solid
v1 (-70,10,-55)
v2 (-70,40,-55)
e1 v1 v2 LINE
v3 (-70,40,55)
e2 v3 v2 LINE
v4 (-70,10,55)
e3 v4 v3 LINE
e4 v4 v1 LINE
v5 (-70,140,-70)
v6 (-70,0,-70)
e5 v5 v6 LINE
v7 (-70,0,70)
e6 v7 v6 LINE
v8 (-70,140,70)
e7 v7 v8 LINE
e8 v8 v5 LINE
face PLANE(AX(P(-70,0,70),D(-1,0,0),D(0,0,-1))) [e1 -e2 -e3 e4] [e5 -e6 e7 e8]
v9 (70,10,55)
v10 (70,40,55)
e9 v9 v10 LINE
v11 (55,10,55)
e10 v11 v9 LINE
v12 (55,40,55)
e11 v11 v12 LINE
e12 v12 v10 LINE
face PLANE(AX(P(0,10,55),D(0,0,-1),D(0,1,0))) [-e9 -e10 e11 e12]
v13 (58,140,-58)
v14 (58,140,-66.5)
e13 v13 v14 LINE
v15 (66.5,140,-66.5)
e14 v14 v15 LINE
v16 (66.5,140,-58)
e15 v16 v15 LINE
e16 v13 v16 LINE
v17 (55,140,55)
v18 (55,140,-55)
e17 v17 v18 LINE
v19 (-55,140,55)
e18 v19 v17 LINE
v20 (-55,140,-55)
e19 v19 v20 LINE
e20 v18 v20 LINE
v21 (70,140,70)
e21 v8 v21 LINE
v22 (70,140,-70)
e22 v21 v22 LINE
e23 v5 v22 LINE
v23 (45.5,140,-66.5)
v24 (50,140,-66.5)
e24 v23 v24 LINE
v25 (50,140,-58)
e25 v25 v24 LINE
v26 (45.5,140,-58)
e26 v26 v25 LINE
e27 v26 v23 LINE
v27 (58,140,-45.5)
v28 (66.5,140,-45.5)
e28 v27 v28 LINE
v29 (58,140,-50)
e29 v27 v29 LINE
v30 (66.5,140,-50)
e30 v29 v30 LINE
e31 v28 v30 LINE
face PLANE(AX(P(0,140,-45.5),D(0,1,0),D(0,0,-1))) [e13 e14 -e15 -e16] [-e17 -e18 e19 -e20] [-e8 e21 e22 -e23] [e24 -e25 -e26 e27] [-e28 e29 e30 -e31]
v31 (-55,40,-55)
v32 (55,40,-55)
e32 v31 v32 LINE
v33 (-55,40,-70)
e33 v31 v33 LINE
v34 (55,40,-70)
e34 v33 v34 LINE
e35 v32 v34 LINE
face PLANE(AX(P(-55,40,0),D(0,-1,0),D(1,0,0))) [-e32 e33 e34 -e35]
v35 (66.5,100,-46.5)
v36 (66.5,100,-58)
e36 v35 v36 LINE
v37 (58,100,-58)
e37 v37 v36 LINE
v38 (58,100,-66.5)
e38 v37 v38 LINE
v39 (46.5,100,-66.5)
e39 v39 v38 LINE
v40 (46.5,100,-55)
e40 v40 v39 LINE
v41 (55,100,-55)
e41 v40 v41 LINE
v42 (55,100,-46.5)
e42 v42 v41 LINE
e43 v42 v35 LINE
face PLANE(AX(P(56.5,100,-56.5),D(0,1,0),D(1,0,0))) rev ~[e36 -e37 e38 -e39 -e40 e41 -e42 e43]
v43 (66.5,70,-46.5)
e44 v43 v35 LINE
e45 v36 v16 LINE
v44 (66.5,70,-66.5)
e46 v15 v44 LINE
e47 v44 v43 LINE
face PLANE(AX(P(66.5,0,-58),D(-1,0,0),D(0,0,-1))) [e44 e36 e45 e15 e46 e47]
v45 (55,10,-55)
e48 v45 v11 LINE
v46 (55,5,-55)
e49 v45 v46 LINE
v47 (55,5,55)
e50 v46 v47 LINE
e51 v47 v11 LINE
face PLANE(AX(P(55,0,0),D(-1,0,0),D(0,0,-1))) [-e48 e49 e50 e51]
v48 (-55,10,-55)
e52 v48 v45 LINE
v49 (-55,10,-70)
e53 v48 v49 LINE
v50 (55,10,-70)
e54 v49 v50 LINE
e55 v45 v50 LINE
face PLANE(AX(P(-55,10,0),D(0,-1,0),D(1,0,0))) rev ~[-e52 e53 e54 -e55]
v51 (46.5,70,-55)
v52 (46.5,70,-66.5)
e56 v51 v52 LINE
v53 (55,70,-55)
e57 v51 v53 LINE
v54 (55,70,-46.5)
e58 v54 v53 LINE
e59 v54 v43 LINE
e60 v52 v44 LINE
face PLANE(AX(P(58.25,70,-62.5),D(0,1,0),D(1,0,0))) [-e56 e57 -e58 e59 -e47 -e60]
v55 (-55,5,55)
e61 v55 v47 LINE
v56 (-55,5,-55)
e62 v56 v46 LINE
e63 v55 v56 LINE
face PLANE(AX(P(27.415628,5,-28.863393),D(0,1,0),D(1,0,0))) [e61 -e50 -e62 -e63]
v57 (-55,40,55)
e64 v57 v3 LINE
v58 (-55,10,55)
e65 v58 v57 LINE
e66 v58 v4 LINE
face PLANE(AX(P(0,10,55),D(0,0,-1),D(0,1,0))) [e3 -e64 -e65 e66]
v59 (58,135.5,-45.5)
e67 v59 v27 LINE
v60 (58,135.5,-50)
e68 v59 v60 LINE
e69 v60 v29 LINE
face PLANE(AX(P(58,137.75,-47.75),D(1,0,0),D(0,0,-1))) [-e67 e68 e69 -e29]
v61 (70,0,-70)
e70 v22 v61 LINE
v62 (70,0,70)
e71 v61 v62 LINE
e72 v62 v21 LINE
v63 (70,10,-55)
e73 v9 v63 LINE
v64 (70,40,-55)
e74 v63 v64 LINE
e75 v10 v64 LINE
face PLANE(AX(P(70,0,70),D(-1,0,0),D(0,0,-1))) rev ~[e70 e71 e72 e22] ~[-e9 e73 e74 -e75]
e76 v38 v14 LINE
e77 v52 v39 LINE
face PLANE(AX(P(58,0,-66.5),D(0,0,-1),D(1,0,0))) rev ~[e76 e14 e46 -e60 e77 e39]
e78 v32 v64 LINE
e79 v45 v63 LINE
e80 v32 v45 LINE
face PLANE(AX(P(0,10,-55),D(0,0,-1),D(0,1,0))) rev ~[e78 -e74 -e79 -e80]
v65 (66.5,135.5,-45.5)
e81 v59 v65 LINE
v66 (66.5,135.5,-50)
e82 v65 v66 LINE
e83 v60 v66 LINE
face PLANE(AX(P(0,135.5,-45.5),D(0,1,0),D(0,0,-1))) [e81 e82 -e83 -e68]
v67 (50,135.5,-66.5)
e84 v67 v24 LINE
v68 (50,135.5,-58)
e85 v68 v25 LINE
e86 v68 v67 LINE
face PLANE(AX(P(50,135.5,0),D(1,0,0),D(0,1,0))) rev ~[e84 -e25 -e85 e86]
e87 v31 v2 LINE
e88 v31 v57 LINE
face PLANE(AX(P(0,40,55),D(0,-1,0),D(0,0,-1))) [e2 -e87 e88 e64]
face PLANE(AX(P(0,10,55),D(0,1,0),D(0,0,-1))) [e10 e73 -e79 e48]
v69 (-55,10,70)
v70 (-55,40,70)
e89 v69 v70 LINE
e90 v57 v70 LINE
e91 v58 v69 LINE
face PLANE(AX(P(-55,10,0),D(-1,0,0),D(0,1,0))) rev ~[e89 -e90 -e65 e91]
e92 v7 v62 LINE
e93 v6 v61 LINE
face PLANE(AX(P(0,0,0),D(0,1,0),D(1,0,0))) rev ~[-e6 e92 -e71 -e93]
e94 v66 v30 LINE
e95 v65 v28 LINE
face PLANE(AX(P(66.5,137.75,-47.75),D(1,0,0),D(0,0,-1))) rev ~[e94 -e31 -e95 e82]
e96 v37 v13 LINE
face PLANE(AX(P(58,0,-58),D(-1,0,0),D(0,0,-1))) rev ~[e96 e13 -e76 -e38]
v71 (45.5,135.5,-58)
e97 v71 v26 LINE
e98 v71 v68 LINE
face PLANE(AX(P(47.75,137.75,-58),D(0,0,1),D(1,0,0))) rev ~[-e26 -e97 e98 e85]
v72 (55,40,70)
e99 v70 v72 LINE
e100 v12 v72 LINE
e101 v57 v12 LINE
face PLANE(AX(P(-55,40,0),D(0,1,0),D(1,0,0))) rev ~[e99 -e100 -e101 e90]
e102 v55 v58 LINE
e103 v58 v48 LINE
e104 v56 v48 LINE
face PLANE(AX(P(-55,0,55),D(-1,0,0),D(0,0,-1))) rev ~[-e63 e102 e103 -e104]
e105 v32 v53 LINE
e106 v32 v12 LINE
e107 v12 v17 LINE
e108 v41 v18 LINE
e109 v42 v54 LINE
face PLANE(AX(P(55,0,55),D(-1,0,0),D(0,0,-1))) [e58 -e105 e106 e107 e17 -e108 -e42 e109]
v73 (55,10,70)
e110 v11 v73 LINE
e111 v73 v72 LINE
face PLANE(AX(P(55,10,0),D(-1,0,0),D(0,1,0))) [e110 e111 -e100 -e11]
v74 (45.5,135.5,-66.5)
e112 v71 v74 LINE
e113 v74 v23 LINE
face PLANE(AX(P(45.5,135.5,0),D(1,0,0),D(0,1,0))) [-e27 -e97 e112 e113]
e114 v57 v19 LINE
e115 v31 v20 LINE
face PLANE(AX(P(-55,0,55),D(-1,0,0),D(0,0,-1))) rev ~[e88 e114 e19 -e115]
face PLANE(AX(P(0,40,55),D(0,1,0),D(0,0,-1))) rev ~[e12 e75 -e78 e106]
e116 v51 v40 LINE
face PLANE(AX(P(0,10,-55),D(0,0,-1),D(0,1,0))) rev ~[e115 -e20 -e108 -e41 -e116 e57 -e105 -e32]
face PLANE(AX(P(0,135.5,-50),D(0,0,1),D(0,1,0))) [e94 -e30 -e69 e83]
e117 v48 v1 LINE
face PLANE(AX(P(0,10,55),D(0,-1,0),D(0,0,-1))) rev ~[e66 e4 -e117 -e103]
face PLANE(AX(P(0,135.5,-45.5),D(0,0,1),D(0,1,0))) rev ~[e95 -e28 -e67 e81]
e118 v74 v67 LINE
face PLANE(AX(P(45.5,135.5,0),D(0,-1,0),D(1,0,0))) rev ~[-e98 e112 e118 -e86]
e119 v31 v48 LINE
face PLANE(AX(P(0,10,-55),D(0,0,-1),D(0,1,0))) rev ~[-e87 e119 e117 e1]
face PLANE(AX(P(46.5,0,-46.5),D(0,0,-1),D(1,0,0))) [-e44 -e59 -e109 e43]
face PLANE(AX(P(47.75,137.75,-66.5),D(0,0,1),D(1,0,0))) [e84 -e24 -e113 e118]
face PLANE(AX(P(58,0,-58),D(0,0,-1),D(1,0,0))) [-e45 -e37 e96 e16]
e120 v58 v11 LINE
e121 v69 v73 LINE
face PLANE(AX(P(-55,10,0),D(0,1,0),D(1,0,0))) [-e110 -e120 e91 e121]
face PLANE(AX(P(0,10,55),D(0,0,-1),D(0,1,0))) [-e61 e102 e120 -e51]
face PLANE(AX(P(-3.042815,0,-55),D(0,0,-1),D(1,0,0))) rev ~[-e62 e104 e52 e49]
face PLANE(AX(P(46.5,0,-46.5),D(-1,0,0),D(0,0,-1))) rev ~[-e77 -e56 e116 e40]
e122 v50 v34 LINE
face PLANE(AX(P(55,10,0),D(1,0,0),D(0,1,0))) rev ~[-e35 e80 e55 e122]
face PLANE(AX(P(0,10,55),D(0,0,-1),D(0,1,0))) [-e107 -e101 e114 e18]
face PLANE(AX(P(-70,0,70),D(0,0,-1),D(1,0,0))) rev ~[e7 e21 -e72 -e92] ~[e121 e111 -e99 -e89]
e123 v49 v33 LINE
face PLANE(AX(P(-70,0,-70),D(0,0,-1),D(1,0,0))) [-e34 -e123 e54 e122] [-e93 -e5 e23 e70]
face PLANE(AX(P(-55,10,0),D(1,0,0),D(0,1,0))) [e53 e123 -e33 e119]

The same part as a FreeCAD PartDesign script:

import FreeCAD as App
import Part
import Sketcher

V = App.Vector


def add_polygon(sketch, points):
    """Adds a closed chain of lines whose ends are joined by coincident constraints."""
    first, n = sketch.GeometryCount, len(points)
    for a, b in zip(points, points[1:] + points[:1]):
        sketch.addGeometry(Part.LineSegment(App.Vector(*a, 0), App.Vector(*b, 0)), False)
    for i in range(n):
        sketch.addConstraint(Sketcher.Constraint("Coincident", first + i, 2, first + (i + 1) % n, 1))

doc = App.newDocument("Part")
body = doc.addObject("PartDesign::Body", "Body")

# Sketch on XZ plane
sketch1 = body.newObject("Sketcher::SketchObject", "Sketch")
sketch1.AttachmentSupport = (doc.getObject("XZ_Plane"), [""])
sketch1.MapMode = "FlatFace"
add_polygon(sketch1, [(-70, -70), (-70, 70), (70, 70), (70, -70)])  # lines 0-3
sketch1.addConstraint([
    Sketcher.Constraint("Vertical", 0),
    Sketcher.Constraint("Horizontal", 1),
    Sketcher.Constraint("Vertical", 2),
    Sketcher.Constraint("Horizontal", 3),
    Sketcher.Constraint("Symmetric", 0, 2, 2, 2, -1, 1),
    Sketcher.Constraint("Equal", 3, 0),
    Sketcher.Constraint("DistanceX", 1, 1, 1, 2, 140.0),
])
pad1 = body.newObject("PartDesign::Pad", "Pad")
pad1.Profile = sketch1
pad1.Length = 140
pad1.Reversed = True

# Sketch on XZ plane
sketch2 = body.newObject("Sketcher::SketchObject", "Sketch001")
sketch2.AttachmentSupport = (doc.getObject("XZ_Plane"), [""])
sketch2.MapMode = "FlatFace"
add_polygon(sketch2, [(-55, -55), (-55, 55), (55, 55), (55, -55)])  # lines 0-3
sketch2.addConstraint([
    Sketcher.Constraint("Vertical", 0),
    Sketcher.Constraint("Horizontal", 1),
    Sketcher.Constraint("Vertical", 2),
    Sketcher.Constraint("Horizontal", 3),
    Sketcher.Constraint("Symmetric", 0, 2, 2, 2, -1, 1),
    Sketcher.Constraint("Equal", 3, 0),
    Sketcher.Constraint("DistanceX", 1, 1, 1, 2, 110.0),
])
pocket1 = body.newObject("PartDesign::Pocket", "Pocket")
pocket1.Profile = sketch2
pocket1.Length = 140

# Sketch on XZ plane
sketch3 = body.newObject("Sketcher::SketchObject", "Sketch002")
sketch3.AttachmentSupport = (doc.getObject("XZ_Plane"), [""])
sketch3.MapMode = "FlatFace"
add_polygon(sketch3, [(-70, -70), (-70, 70), (70, 70), (70, -70)])  # lines 0-3
sketch3.addConstraint([
    Sketcher.Constraint("Vertical", 0),
    Sketcher.Constraint("Horizontal", 1),
    Sketcher.Constraint("Vertical", 2),
    Sketcher.Constraint("Horizontal", 3),
    Sketcher.Constraint("Symmetric", 0, 2, 2, 2, -1, 1),
    Sketcher.Constraint("Equal", 3, 0),
    Sketcher.Constraint("DistanceX", 1, 1, 1, 2, 140.0),
])
pad2 = body.newObject("PartDesign::Pad", "Pad001")
pad2.Profile = sketch3
pad2.Length = 5
pad2.Reversed = True

# Sketch on XZ plane
sketch4 = body.newObject("Sketcher::SketchObject", "Sketch003")
sketch4.AttachmentSupport = (doc.getObject("XZ_Plane"), [""])
sketch4.MapMode = "FlatFace"
add_polygon(sketch4, [(58, -66), (58, -58), (66, -58), (66, -66)])  # lines 0-3
sketch4.addConstraint([
    Sketcher.Constraint("Vertical", 0),
    Sketcher.Constraint("Horizontal", 1),
    Sketcher.Constraint("Vertical", 2),
    Sketcher.Constraint("Horizontal", 3),
    Sketcher.Constraint("Equal", 3, 0),
    Sketcher.Constraint("DistanceX", 1, 1, 1, 2, 8.5),
    Sketcher.Constraint("DistanceX", -1, 1, 0, 2, 58.0),
    Sketcher.Constraint("DistanceY", 0, 2, -1, 1, 58.0),
])
pocket2 = body.newObject("PartDesign::Pocket", "Pocket001")
pocket2.Profile = sketch4
pocket2.Length = 140

# Sketch on XZ plane
sketch5 = body.newObject("Sketcher::SketchObject", "Sketch004")
sketch5.AttachmentSupport = (doc.getObject("XZ_Plane"), [""])
sketch5.MapMode = "FlatFace"
add_polygon(sketch5, [(46, -66), (46, -46), (66, -46), (66, -66)])  # lines 0-3
sketch5.addConstraint([
    Sketcher.Constraint("Vertical", 0),
    Sketcher.Constraint("Horizontal", 1),
    Sketcher.Constraint("Vertical", 2),
    Sketcher.Constraint("Horizontal", 3),
    Sketcher.Constraint("Equal", 3, 0),
    Sketcher.Constraint("DistanceX", 1, 1, 1, 2, 20.0),
    Sketcher.Constraint("DistanceX", -1, 1, 0, 2, 46.5),
    Sketcher.Constraint("DistanceY", 0, 2, -1, 1, 46.5),
])
pocket3 = body.newObject("PartDesign::Pocket", "Pocket002")
pocket3.Profile = sketch5
pocket3.Length = 100

# Sketch on XZ plane
sketch6 = body.newObject("Sketcher::SketchObject", "Sketch005")
sketch6.AttachmentSupport = (doc.getObject("XZ_Plane"), [""])
sketch6.MapMode = "FlatFace"
add_polygon(sketch6, [(41, -70), (41, -41), (70, -41), (70, -70)])  # lines 0-3
sketch6.addConstraint([
    Sketcher.Constraint("Vertical", 0),
    Sketcher.Constraint("Horizontal", 1),
    Sketcher.Constraint("Vertical", 2),
    Sketcher.Constraint("Horizontal", 3),
    Sketcher.Constraint("DistanceX", -1, 1, 1, 2, 70.0),
    Sketcher.Constraint("DistanceY", 2, 2, -1, 1, 70.0),
    Sketcher.Constraint("DistanceX", 1, 1, 1, 2, 28.647963),
    Sketcher.Constraint("DistanceY", 0, 1, 0, 2, 28.734113),
])
pad3 = body.newObject("PartDesign::Pad", "Pad002")
pad3.Profile = sketch6
pad3.Length = 5
pad3.Reversed = True

# Sketch on XZ plane
sketch7 = body.newObject("Sketcher::SketchObject", "Sketch006")
sketch7.AttachmentSupport = (doc.getObject("XZ_Plane"), [""])
sketch7.MapMode = "FlatFace"
add_polygon(sketch7, [(46, -70), (46, -55), (70, -55), (70, -70)])  # lines 0-3
sketch7.addConstraint([
    Sketcher.Constraint("Vertical", 0),
    Sketcher.Constraint("Horizontal", 1),
    Sketcher.Constraint("Vertical", 2),
    Sketcher.Constraint("Horizontal", 3),
    Sketcher.Constraint("DistanceY", 0, 1, 0, 2, 15.0),
    Sketcher.Constraint("DistanceX", 1, 1, 1, 2, 23.5),
    Sketcher.Constraint("DistanceY", 0, 2, -1, 1, 55.0),
    Sketcher.Constraint("DistanceX", -1, 1, 1, 2, 70.0),
])
pad4 = body.newObject("PartDesign::Pad", "Pad003")
pad4.Profile = sketch7
pad4.Length = 70
pad4.Reversed = True

# Sketch on XZ plane
sketch8 = body.newObject("Sketcher::SketchObject", "Sketch007")
sketch8.AttachmentSupport = (doc.getObject("XZ_Plane"), [""])
sketch8.MapMode = "FlatFace"
add_polygon(sketch8, [(55, -70), (55, -44), (70, -44), (70, -70)])  # lines 0-3
sketch8.addConstraint([
    Sketcher.Constraint("Vertical", 0),
    Sketcher.Constraint("Horizontal", 1),
    Sketcher.Constraint("Vertical", 2),
    Sketcher.Constraint("Horizontal", 3),
    Sketcher.Constraint("DistanceX", 1, 1, 1, 2, 15.0),
    Sketcher.Constraint("DistanceX", -1, 1, 0, 2, 55.0),
    Sketcher.Constraint("DistanceY", 2, 2, -1, 1, 70.0),
    Sketcher.Constraint("DistanceY", 0, 1, 0, 2, 26.494211),
])
pad5 = body.newObject("PartDesign::Pad", "Pad004")
pad5.Profile = sketch8
pad5.Length = 70
pad5.Reversed = True

# Sketch on YZ plane
sketch9 = body.newObject("Sketcher::SketchObject", "Sketch008")
sketch9.AttachmentSupport = (doc.getObject("YZ_Plane"), [""])
sketch9.MapMode = "FlatFace"
add_polygon(sketch9, [(40, 55), (10, 55), (10, -55), (40, -55)])  # lines 0-3
sketch9.addConstraint([
    Sketcher.Constraint("Horizontal", 0),
    Sketcher.Constraint("Vertical", 1),
    Sketcher.Constraint("Horizontal", 2),
    Sketcher.Constraint("Vertical", 3),
    Sketcher.Constraint("DistanceX", 0, 2, 0, 1, 30.0),
    Sketcher.Constraint("DistanceY", 1, 2, 1, 1, 110.0),
    Sketcher.Constraint("DistanceX", -1, 1, 0, 2, 10.0),
    Sketcher.Constraint("DistanceY", -1, 1, 0, 2, 55.0),
])
pocket4 = body.newObject("PartDesign::Pocket", "Pocket003")
pocket4.Profile = sketch9
pocket4.Type = "ThroughAll"
pocket4.Midplane = True

# Sketch on XY plane
sketch10 = body.newObject("Sketcher::SketchObject", "Sketch009")
sketch10.AttachmentSupport = (doc.getObject("XY_Plane"), [""])
sketch10.MapMode = "FlatFace"
add_polygon(sketch10, [(-55, 40), (-55, 10), (55, 10), (55, 40)])  # lines 0-3
sketch10.addConstraint([
    Sketcher.Constraint("Vertical", 0),
    Sketcher.Constraint("Horizontal", 1),
    Sketcher.Constraint("Vertical", 2),
    Sketcher.Constraint("Horizontal", 3),
    Sketcher.Constraint("DistanceX", 1, 1, 1, 2, 110.0),
    Sketcher.Constraint("DistanceY", 0, 2, 0, 1, 30.0),
    Sketcher.Constraint("DistanceX", 0, 2, -1, 1, 55.0),
    Sketcher.Constraint("DistanceY", -1, 1, 0, 2, 10.0),
])
pocket5 = body.newObject("PartDesign::Pocket", "Pocket004")
pocket5.Profile = sketch10
pocket5.Type = "ThroughAll"
pocket5.Midplane = True

# Sketch on XY plane
sketch11 = body.newObject("Sketcher::SketchObject", "Sketch010")
sketch11.AttachmentSupport = (doc.getObject("XY_Plane"), [""])
sketch11.MapMode = "FlatFace"
add_polygon(sketch11, [(45.5, 140), (45.5, 135.5), (50, 135.5), (50, 140)])  # lines 0-3
sketch11.addConstraint([
    Sketcher.Constraint("Vertical", 0),
    Sketcher.Constraint("Horizontal", 1),
    Sketcher.Constraint("Vertical", 2),
    Sketcher.Constraint("Horizontal", 3),
    Sketcher.Constraint("Equal", 3, 0),
    Sketcher.Constraint("DistanceX", 1, 1, 1, 2, 4.5),
    Sketcher.Constraint("DistanceX", -1, 1, 1, 2, 50.0),
    Sketcher.Constraint("DistanceY", -1, 1, 2, 2, 140.0),
])
pocket6 = body.newObject("PartDesign::Pocket", "Pocket005")
pocket6.Profile = sketch11
pocket6.Length = 66.5

# Sketch on YZ plane
sketch12 = body.newObject("Sketcher::SketchObject", "Sketch011")
sketch12.AttachmentSupport = (doc.getObject("YZ_Plane"), [""])
sketch12.MapMode = "FlatFace"
add_polygon(sketch12, [(140, -45.5), (135.5, -45.5), (135.5, -50), (140, -50)])  # lines 0-3
sketch12.addConstraint([
    Sketcher.Constraint("Horizontal", 0),
    Sketcher.Constraint("Vertical", 1),
    Sketcher.Constraint("Horizontal", 2),
    Sketcher.Constraint("Vertical", 3),
    Sketcher.Constraint("Equal", 2, 1),
    Sketcher.Constraint("DistanceX", 0, 2, 0, 1, 4.5),
    Sketcher.Constraint("DistanceY", 1, 2, -1, 1, 50.0),
    Sketcher.Constraint("DistanceX", -1, 1, 2, 2, 140.0),
])
pocket7 = body.newObject("PartDesign::Pocket", "Pocket006")
pocket7.Profile = sketch12
pocket7.Length = 66.5
pocket7.Reversed = True

# Sketch on XY plane
sketch13 = body.newObject("Sketcher::SketchObject", "Sketch012")
sketch13.AttachmentSupport = (doc.getObject("XY_Plane"), [""])
sketch13.MapMode = "FlatFace"
add_polygon(sketch13, [(45.5, 140), (45.5, 135.5), (50, 135.5), (50, 140)])  # lines 0-3
sketch13.addConstraint([
    Sketcher.Constraint("Vertical", 0),
    Sketcher.Constraint("Horizontal", 1),
    Sketcher.Constraint("Vertical", 2),
    Sketcher.Constraint("Horizontal", 3),
    Sketcher.Constraint("Equal", 3, 0),
    Sketcher.Constraint("DistanceX", 1, 1, 1, 2, 4.5),
    Sketcher.Constraint("DistanceX", -1, 1, 1, 2, 50.0),
    Sketcher.Constraint("DistanceY", -1, 1, 2, 2, 140.0),
])
pad6 = body.newObject("PartDesign::Pad", "Pad005")
pad6.Profile = sketch13
pad6.Length = 58
pad6.Reversed = True

# Sketch on YZ plane
sketch14 = body.newObject("Sketcher::SketchObject", "Sketch013")
sketch14.AttachmentSupport = (doc.getObject("YZ_Plane"), [""])
sketch14.MapMode = "FlatFace"
add_polygon(sketch14, [(140, -45.5), (135.5, -45.5), (135.5, -50), (140, -50)])  # lines 0-3
sketch14.addConstraint([
    Sketcher.Constraint("Horizontal", 0),
    Sketcher.Constraint("Vertical", 1),
    Sketcher.Constraint("Horizontal", 2),
    Sketcher.Constraint("Vertical", 3),
    Sketcher.Constraint("Equal", 2, 1),
    Sketcher.Constraint("DistanceX", 0, 2, 0, 1, 4.5),
    Sketcher.Constraint("DistanceY", 1, 2, -1, 1, 50.0),
    Sketcher.Constraint("DistanceX", -1, 1, 2, 2, 140.0),
])
pad7 = body.newObject("PartDesign::Pad", "Pad006")
pad7.Profile = sketch14
pad7.Length = 58

# Sketch on XZ plane
sketch15 = body.newObject("Sketcher::SketchObject", "Sketch014")
sketch15.AttachmentSupport = (doc.getObject("XZ_Plane"), [""])
sketch15.MapMode = "FlatFace"
add_polygon(sketch15, [(-3, -55), (-3, 0), (55, 0), (55, -55)])  # lines 0-3
sketch15.addConstraint([
    Sketcher.Constraint("Vertical", 0),
    Sketcher.Constraint("Horizontal", 1),
    Sketcher.Constraint("Vertical", 2),
    Sketcher.Constraint("Horizontal", 3),
    Sketcher.Constraint("PointOnObject", 0, 2, -1),
    Sketcher.Constraint("DistanceY", 0, 1, 0, 2, 55.0),
    Sketcher.Constraint("DistanceX", -1, 1, 1, 2, 55.0),
    Sketcher.Constraint("DistanceX", 1, 1, 1, 2, 58.042815),
])
pocket8 = body.newObject("PartDesign::Pocket", "Pocket007")
pocket8.Profile = sketch15
pocket8.Length = 140

# Sketch on XZ plane
sketch16 = body.newObject("Sketcher::SketchObject", "Sketch015")
sketch16.AttachmentSupport = (doc.getObject("XZ_Plane"), [""])
sketch16.MapMode = "FlatFace"
add_polygon(sketch16, [(-5, -61), (-5, 3), (60, 3), (60, -61)])  # lines 0-3
sketch16.addConstraint([
    Sketcher.Constraint("Vertical", 0),
    Sketcher.Constraint("Horizontal", 1),
    Sketcher.Constraint("Vertical", 2),
    Sketcher.Constraint("Horizontal", 3),
    Sketcher.Constraint("DistanceY", 0, 1, 0, 2, 63.69425),
    Sketcher.Constraint("DistanceX", 1, 1, 1, 2, 65.730985),
    Sketcher.Constraint("DistanceX", -1, 1, 1, 2, 60.28112),
    Sketcher.Constraint("DistanceY", -1, 1, 0, 2, 2.983732),
])
pad8 = body.newObject("PartDesign::Pad", "Pad007")
pad8.Profile = sketch16
pad8.Length = 5
pad8.Reversed = True

doc.recompute()
